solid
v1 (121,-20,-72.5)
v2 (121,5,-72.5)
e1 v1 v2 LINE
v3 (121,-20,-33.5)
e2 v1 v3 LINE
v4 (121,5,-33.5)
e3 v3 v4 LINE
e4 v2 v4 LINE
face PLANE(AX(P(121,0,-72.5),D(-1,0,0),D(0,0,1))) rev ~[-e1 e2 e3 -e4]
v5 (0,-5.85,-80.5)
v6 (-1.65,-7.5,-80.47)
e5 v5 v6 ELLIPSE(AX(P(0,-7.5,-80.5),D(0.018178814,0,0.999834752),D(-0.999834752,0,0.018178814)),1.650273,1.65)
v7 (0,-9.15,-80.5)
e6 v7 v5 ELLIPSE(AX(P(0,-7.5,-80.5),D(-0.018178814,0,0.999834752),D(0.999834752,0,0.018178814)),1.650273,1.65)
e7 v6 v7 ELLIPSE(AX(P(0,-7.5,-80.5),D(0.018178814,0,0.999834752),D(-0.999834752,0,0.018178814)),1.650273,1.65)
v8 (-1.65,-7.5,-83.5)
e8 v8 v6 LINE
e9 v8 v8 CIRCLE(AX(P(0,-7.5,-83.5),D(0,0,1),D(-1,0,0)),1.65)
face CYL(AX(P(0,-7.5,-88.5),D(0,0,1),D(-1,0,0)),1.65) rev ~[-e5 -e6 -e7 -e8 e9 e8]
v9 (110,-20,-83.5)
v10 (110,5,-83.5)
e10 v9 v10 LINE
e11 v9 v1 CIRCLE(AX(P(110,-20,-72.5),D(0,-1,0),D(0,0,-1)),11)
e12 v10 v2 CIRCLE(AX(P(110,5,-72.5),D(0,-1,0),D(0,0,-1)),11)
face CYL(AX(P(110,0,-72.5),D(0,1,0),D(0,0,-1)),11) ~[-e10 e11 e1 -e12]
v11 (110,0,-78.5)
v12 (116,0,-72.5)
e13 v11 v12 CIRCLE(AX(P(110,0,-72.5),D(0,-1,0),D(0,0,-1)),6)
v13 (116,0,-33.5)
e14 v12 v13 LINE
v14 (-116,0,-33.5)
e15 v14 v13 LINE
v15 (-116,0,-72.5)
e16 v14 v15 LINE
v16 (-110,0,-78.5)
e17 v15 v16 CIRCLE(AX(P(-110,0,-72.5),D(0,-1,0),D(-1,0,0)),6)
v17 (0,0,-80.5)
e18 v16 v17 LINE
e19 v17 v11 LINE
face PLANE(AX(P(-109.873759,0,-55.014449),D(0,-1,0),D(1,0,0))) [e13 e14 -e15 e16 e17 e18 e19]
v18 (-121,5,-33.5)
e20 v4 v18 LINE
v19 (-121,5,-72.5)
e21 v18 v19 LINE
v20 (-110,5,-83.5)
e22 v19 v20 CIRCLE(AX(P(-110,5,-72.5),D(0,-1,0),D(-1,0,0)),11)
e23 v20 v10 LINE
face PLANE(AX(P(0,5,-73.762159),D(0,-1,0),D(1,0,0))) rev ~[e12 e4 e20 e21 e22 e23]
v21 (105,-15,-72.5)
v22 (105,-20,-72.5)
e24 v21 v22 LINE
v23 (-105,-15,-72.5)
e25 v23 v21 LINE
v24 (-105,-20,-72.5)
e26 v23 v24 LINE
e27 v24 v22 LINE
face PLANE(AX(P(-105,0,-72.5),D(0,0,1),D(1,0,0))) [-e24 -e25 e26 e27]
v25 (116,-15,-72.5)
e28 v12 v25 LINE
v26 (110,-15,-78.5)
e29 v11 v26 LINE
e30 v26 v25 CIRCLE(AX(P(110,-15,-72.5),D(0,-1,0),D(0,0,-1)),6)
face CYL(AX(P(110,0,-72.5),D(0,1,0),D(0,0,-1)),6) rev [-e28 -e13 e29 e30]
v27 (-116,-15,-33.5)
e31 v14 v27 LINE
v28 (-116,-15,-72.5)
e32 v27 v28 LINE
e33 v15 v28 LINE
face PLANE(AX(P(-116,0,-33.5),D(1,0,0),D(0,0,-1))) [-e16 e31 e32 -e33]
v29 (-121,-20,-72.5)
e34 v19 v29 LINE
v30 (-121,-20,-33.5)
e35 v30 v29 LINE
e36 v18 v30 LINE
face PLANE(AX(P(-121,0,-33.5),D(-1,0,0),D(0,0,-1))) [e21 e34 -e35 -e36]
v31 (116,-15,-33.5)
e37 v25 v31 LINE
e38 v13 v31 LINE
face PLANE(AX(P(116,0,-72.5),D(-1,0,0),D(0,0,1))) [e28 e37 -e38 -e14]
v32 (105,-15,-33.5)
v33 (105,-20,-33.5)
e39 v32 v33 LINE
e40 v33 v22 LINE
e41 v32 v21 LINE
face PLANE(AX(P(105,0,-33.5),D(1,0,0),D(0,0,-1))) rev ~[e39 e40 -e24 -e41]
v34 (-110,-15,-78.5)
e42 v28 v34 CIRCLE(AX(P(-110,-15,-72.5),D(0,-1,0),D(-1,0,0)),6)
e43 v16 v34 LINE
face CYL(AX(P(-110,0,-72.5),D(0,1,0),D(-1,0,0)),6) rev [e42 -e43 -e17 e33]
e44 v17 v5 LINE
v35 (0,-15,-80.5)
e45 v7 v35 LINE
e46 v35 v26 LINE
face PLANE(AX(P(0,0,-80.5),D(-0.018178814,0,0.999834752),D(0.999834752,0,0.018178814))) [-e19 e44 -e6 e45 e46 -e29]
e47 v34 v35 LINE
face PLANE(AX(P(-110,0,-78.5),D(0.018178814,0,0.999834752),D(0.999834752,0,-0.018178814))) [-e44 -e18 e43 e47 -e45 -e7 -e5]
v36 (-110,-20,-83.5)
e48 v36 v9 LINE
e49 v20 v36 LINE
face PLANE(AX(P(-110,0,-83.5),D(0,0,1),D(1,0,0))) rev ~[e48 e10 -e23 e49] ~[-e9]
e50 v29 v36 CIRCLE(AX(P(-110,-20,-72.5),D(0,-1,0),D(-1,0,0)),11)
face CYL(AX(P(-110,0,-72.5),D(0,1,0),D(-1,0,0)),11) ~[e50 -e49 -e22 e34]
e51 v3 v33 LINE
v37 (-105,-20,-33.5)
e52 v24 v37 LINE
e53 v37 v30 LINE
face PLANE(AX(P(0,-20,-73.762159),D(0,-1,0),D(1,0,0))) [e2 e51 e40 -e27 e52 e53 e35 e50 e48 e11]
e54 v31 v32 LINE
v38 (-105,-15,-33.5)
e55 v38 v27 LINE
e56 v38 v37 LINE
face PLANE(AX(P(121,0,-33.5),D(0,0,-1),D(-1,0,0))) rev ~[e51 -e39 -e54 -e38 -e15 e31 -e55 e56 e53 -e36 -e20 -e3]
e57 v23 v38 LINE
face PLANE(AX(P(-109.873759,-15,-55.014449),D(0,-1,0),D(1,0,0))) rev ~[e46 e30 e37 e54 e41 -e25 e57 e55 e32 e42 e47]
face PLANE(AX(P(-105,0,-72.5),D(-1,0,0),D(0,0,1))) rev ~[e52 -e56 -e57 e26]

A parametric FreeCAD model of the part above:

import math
import FreeCAD as App
import Part
import Sketcher

V = App.Vector

doc = App.newDocument("Part")
params = doc.addObject("Spreadsheet::Sheet", "Params")
for row, (alias, value) in enumerate([
    ("sketch1_radius", "11 mm"),
    ("sketch1_width", "242 mm"),
    ("sketch1_height", "39 mm"),
    ("pad1_length", "5 mm"),
    ("sketch2_radius", "11 mm"),
    ("sketch2_width", "16 mm"),
    ("sketch2_width2", "210 mm"),
    ("sketch2_height", "39 mm"),
    ("pad2_length", "20 mm"),
    ("sketch3_radius", "6 mm"),
    ("sketch3_width", "11 mm"),
    ("sketch3_width2", "210 mm"),
    ("sketch3_height", "39 mm"),
    ("pocket1_length", "15 mm"),
    ("sketch4_diameter", "3.3 mm"),
    ("hole_diameter", "3.3 mm"),
    ("hole_depth", "5 mm"),
], start=1):
    params.set(f"A{row}", alias)
    params.set(f"B{row}", "=" + value)
    params.setAlias(f"B{row}", alias)

body = doc.addObject("PartDesign::Body", "Body")

sketch1 = body.newObject("Sketcher::SketchObject", "Sketch")
sketch1.AttachmentSupport = (doc.getObject("XZ_Plane"), [""])
sketch1.MapMode = "FlatFace"
sketch1.addGeometry(Part.LineSegment(V(121, -34, 0), V(-121, -34, 0)), False)
sketch1.addGeometry(Part.LineSegment(V(-121, -34, 0), V(-121, -72, 0)), False)
sketch1.addGeometry(Part.ArcOfCircle(Part.Circle(V(-110, -72, 0), V(0, 0, 1), 11), math.radians(180), math.radians(270)), False)
sketch1.addGeometry(Part.LineSegment(V(-110, -84, 0), V(110, -84, 0)), False)
sketch1.addGeometry(Part.ArcOfCircle(Part.Circle(V(110, -72, 0), V(0, 0, 1), 11), math.radians(-90), math.radians(0)), False)
sketch1.addGeometry(Part.LineSegment(V(121, -72, 0), V(121, -34, 0)), False)
sketch1.addConstraint(Sketcher.Constraint("Coincident", 0, 2, 1, 1))
sketch1.addConstraint(Sketcher.Constraint("Tangent", 1, 2, 2, 1))
sketch1.addConstraint(Sketcher.Constraint("Tangent", 2, 2, 3, 1))
sketch1.addConstraint(Sketcher.Constraint("Tangent", 3, 2, 4, 1))
sketch1.addConstraint(Sketcher.Constraint("Tangent", 4, 2, 5, 1))
sketch1.addConstraint(Sketcher.Constraint("Coincident", 5, 2, 0, 1))
sketch1.addConstraint(Sketcher.Constraint("Horizontal", 0))
sketch1.addConstraint(Sketcher.Constraint("Vertical", 1))
sketch1.addConstraint(Sketcher.Constraint("Horizontal", 3))
sketch1.addConstraint(Sketcher.Constraint("Vertical", 5))
sketch1.addConstraint(Sketcher.Constraint("Equal", 2, 4))
sketch1.addConstraint(Sketcher.Constraint("Radius", 2, 11.0))
sketch1.addConstraint(Sketcher.Constraint("DistanceX", 0, 2, 0, 1, 242.0))
sketch1.addConstraint(Sketcher.Constraint("DistanceY", 1, 2, 1, 1, 39.0))
sketch1.addConstraint(Sketcher.Constraint("DistanceX", 2, 3, -1, 1, 110.0))
sketch1.addConstraint(Sketcher.Constraint("DistanceY", 2, 3, -1, 1, 72.5))
sketch1.setExpression("Constraints[11]", "Params.sketch1_radius")
sketch1.setExpression("Constraints[12]", "Params.sketch1_width")
sketch1.setExpression("Constraints[13]", "Params.sketch1_height")
pad1 = body.newObject("PartDesign::Pad", "Pad")
pad1.Profile = sketch1
pad1.setExpression("Length", "Params.pad1_length")
pad1.Reversed = True

sketch2 = body.newObject("Sketcher::SketchObject", "Sketch001")
sketch2.AttachmentSupport = (doc.getObject("XZ_Plane"), [""])
sketch2.MapMode = "FlatFace"
sketch2.addGeometry(Part.LineSegment(V(121, -34, 0), V(105, -34, 0)), False)
sketch2.addGeometry(Part.LineSegment(V(105, -34, 0), V(105, -72, 0)), False)
sketch2.addGeometry(Part.LineSegment(V(105, -72, 0), V(-105, -72, 0)), False)
sketch2.addGeometry(Part.LineSegment(V(-105, -72, 0), V(-105, -34, 0)), False)
sketch2.addGeometry(Part.LineSegment(V(-105, -34, 0), V(-121, -34, 0)), False)
sketch2.addGeometry(Part.LineSegment(V(-121, -34, 0), V(-121, -72, 0)), False)
sketch2.addGeometry(Part.ArcOfCircle(Part.Circle(V(-110, -72, 0), V(0, 0, 1), 11), math.radians(180), math.radians(270)), False)
sketch2.addGeometry(Part.LineSegment(V(-110, -84, 0), V(110, -84, 0)), False)
sketch2.addGeometry(Part.ArcOfCircle(Part.Circle(V(110, -72, 0), V(0, 0, 1), 11), math.radians(-90), math.radians(0)), False)
sketch2.addGeometry(Part.LineSegment(V(121, -72, 0), V(121, -34, 0)), False)
sketch2.addConstraint(Sketcher.Constraint("Coincident", 0, 2, 1, 1))
sketch2.addConstraint(Sketcher.Constraint("Coincident", 1, 2, 2, 1))
sketch2.addConstraint(Sketcher.Constraint("Coincident", 2, 2, 3, 1))
sketch2.addConstraint(Sketcher.Constraint("Coincident", 3, 2, 4, 1))
sketch2.addConstraint(Sketcher.Constraint("Coincident", 4, 2, 5, 1))
sketch2.addConstraint(Sketcher.Constraint("Tangent", 5, 2, 6, 1))
sketch2.addConstraint(Sketcher.Constraint("Tangent", 6, 2, 7, 1))
sketch2.addConstraint(Sketcher.Constraint("Tangent", 7, 2, 8, 1))
sketch2.addConstraint(Sketcher.Constraint("Tangent", 8, 2, 9, 1))
sketch2.addConstraint(Sketcher.Constraint("Coincident", 9, 2, 0, 1))
sketch2.addConstraint(Sketcher.Constraint("Horizontal", 0))
sketch2.addConstraint(Sketcher.Constraint("Vertical", 1))
sketch2.addConstraint(Sketcher.Constraint("Horizontal", 2))
sketch2.addConstraint(Sketcher.Constraint("Vertical", 3))
sketch2.addConstraint(Sketcher.Constraint("Horizontal", 4))
sketch2.addConstraint(Sketcher.Constraint("Vertical", 5))
sketch2.addConstraint(Sketcher.Constraint("Horizontal", 7))
sketch2.addConstraint(Sketcher.Constraint("Vertical", 9))
sketch2.addConstraint(Sketcher.Constraint("Equal", 6, 8))
sketch2.addConstraint(Sketcher.Constraint("Symmetric", 0, 2, 3, 2, -2))
sketch2.addConstraint(Sketcher.Constraint("Horizontal", 8, 3, 1, 2))
sketch2.addConstraint(Sketcher.Constraint("Equal", 0, 4))
sketch2.addConstraint(Sketcher.Constraint("Radius", 6, 11.0))
sketch2.addConstraint(Sketcher.Constraint("DistanceX", 0, 2, 0, 1, 16.0))
sketch2.addConstraint(Sketcher.Constraint("DistanceX", 2, 2, 2, 1, 210.0))
sketch2.addConstraint(Sketcher.Constraint("DistanceY", 1, 2, 1, 1, 39.0))
sketch2.addConstraint(Sketcher.Constraint("DistanceY", 6, 3, -1, 1, 72.5))
sketch2.setExpression("Constraints[22]", "Params.sketch2_radius")
sketch2.setExpression("Constraints[23]", "Params.sketch2_width")
sketch2.setExpression("Constraints[24]", "Params.sketch2_width2")
sketch2.setExpression("Constraints[25]", "Params.sketch2_height")
pad2 = body.newObject("PartDesign::Pad", "Pad001")
pad2.Profile = sketch2
pad2.setExpression("Length", "Params.pad2_length")

sketch3 = body.newObject("Sketcher::SketchObject", "Sketch002")
sketch3.AttachmentSupport = (doc.getObject("XZ_Plane"), [""])
sketch3.MapMode = "FlatFace"
sketch3.addGeometry(Part.LineSegment(V(-105, -34, 0), V(-116, -34, 0)), False)
sketch3.addGeometry(Part.LineSegment(V(-116, -34, 0), V(-116, -72, 0)), False)
sketch3.addGeometry(Part.ArcOfCircle(Part.Circle(V(-110, -72, 0), V(0, 0, 1), 6), math.radians(180), math.radians(270)), False)
sketch3.addGeometry(Part.LineSegment(V(-110, -78, 0), V(0, -80, 0)), False)
sketch3.addGeometry(Part.LineSegment(V(0, -80, 0), V(110, -78, 0)), False)
sketch3.addGeometry(Part.ArcOfCircle(Part.Circle(V(110, -72, 0), V(0, 0, 1), 6), math.radians(-90), math.radians(0)), False)
sketch3.addGeometry(Part.LineSegment(V(116, -72, 0), V(116, -34, 0)), False)
sketch3.addGeometry(Part.LineSegment(V(116, -34, 0), V(105, -34, 0)), False)
sketch3.addGeometry(Part.LineSegment(V(105, -34, 0), V(105, -72, 0)), False)
sketch3.addGeometry(Part.LineSegment(V(105, -72, 0), V(-105, -72, 0)), False)
sketch3.addGeometry(Part.LineSegment(V(-105, -72, 0), V(-105, -34, 0)), False)
sketch3.addConstraint(Sketcher.Constraint("Coincident", 0, 2, 1, 1))
sketch3.addConstraint(Sketcher.Constraint("Tangent", 1, 2, 2, 1))
sketch3.addConstraint(Sketcher.Constraint("Coincident", 2, 2, 3, 1))
sketch3.addConstraint(Sketcher.Constraint("Coincident", 3, 2, 4, 1))
sketch3.addConstraint(Sketcher.Constraint("Coincident", 4, 2, 5, 1))
sketch3.addConstraint(Sketcher.Constraint("Tangent", 5, 2, 6, 1))
sketch3.addConstraint(Sketcher.Constraint("Coincident", 6, 2, 7, 1))
sketch3.addConstraint(Sketcher.Constraint("Coincident", 7, 2, 8, 1))
sketch3.addConstraint(Sketcher.Constraint("Coincident", 8, 2, 9, 1))
sketch3.addConstraint(Sketcher.Constraint("Coincident", 9, 2, 10, 1))
sketch3.addConstraint(Sketcher.Constraint("Coincident", 10, 2, 0, 1))
sketch3.addConstraint(Sketcher.Constraint("Horizontal", 0))
sketch3.addConstraint(Sketcher.Constraint("Vertical", 1))
sketch3.addConstraint(Sketcher.Constraint("Vertical", 6))
sketch3.addConstraint(Sketcher.Constraint("Horizontal", 7))
sketch3.addConstraint(Sketcher.Constraint("Vertical", 8))
sketch3.addConstraint(Sketcher.Constraint("Horizontal", 9))
sketch3.addConstraint(Sketcher.Constraint("Vertical", 10))
sketch3.addConstraint(Sketcher.Constraint("Equal", 2, 5))
sketch3.addConstraint(Sketcher.Constraint("Symmetric", 2, 3, 5, 3, -2))
sketch3.addConstraint(Sketcher.Constraint("Symmetric", 7, 2, 10, 2, -2))
sketch3.addConstraint(Sketcher.Constraint("PointOnObject", 3, 2, -2))
sketch3.addConstraint(Sketcher.Constraint("Horizontal", 5, 2, 8, 2))
sketch3.addConstraint(Sketcher.Constraint("Vertical", 5, 3, 4, 2))
sketch3.addConstraint(Sketcher.Constraint("Equal", 3, 4))
sketch3.addConstraint(Sketcher.Constraint("Radius", 2, 6.0))
sketch3.addConstraint(Sketcher.Constraint("DistanceX", 0, 2, 0, 1, 11.0))
sketch3.addConstraint(Sketcher.Constraint("DistanceX", 9, 2, 9, 1, 210.0))
sketch3.addConstraint(Sketcher.Constraint("DistanceY", 1, 2, 1, 1, 39.0))
sketch3.addConstraint(Sketcher.Constraint("DistanceY", 3, 2, 2, 2, 2.0))
sketch3.addConstraint(Sketcher.Constraint("DistanceY", 2, 3, -1, 1, 72.5))
sketch3.setExpression("Constraints[25]", "Params.sketch3_radius")
sketch3.setExpression("Constraints[26]", "Params.sketch3_width")
sketch3.setExpression("Constraints[27]", "Params.sketch3_width2")
sketch3.setExpression("Constraints[28]", "Params.sketch3_height")
pocket1 = body.newObject("PartDesign::Pocket", "Pocket")
pocket1.Profile = sketch3
pocket1.setExpression("Length", "Params.pocket1_length")
pocket1.Reversed = True

sketch4 = body.newObject("Sketcher::SketchObject", "Sketch003")
sketch4.AttachmentSupport = (doc.getObject("XY_Plane"), [""])
sketch4.MapMode = "FlatFace"
sketch4.AttachmentOffset = App.Placement(V(0, 0, -83.5), App.Rotation())
sketch4.addGeometry(Part.Circle(V(0, -7.5, 0), V(0, 0, 1), 1.6), False)
sketch4.addConstraint(Sketcher.Constraint("PointOnObject", 0, 3, -2))
sketch4.addConstraint(Sketcher.Constraint("Diameter", 0, 3.3))
sketch4.addConstraint(Sketcher.Constraint("DistanceY", 0, 3, -1, 1, 7.5))
sketch4.setExpression("Constraints[1]", "Params.sketch4_diameter")
doc.recompute()
hole = body.newObject("PartDesign::Hole", "Hole")
hole.Profile = sketch4
hole.ThreadType = "None"
hole.setExpression("Diameter", "Params.hole_diameter")
hole.DepthType = "Dimension"
hole.setExpression("Depth", "Params.hole_depth")
hole.DrillPoint = "Angled"
hole.DrillPointAngle = 118
hole.Reversed = True

doc.recompute()
